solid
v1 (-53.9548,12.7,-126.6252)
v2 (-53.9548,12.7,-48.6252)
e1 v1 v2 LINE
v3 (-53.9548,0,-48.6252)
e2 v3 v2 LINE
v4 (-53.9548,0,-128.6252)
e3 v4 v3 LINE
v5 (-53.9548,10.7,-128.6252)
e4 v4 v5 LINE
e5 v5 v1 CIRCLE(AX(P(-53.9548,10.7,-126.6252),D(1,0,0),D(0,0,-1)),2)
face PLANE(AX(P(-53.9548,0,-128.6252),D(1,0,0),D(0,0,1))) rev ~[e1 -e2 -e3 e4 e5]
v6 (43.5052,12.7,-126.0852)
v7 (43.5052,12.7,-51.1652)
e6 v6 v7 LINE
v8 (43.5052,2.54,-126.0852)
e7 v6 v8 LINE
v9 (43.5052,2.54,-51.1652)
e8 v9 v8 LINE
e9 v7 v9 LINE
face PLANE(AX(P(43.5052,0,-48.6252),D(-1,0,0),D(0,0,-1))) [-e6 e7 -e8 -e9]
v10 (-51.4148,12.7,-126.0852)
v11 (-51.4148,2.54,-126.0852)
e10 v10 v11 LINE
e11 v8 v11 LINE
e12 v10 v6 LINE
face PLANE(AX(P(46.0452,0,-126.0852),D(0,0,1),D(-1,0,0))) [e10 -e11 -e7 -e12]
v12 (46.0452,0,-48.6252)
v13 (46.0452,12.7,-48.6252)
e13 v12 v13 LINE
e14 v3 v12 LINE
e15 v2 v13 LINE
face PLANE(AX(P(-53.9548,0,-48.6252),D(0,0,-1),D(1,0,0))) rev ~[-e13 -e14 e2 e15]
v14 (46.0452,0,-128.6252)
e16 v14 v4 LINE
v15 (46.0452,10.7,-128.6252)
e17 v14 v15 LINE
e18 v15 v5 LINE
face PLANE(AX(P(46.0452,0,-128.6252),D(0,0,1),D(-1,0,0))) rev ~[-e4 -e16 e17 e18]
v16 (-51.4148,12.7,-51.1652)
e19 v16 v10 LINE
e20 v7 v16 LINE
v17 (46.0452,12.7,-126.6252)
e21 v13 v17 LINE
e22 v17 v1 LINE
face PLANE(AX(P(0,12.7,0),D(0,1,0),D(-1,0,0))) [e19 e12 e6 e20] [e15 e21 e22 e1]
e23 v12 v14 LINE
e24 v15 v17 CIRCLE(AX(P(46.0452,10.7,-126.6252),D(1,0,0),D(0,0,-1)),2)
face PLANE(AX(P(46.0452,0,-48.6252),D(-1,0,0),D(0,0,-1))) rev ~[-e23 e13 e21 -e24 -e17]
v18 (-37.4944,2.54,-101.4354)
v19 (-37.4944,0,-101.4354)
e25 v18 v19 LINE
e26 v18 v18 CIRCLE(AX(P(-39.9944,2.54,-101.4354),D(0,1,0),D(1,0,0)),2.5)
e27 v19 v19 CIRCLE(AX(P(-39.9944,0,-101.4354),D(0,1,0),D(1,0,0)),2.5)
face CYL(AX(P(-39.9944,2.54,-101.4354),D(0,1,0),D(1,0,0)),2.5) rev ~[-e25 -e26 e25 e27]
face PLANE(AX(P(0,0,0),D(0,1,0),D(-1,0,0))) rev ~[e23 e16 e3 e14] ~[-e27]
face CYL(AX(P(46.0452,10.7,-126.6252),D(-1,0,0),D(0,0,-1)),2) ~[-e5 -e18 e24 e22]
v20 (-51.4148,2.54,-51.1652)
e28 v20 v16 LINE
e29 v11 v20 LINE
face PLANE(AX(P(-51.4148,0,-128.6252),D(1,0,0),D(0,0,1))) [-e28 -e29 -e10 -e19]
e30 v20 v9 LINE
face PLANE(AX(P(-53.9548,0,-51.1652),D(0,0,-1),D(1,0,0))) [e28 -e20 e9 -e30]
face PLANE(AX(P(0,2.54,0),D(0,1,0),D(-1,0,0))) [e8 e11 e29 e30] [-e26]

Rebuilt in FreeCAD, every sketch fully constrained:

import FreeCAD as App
import Part
import Sketcher
from FreeCAD import Vector
Q = App.Units.Quantity


def edges_at(feature, points):
    """Names of the edges that pass closest to the given points."""
    edges = feature.Shape.Edges
    near = lambda p: min(range(len(edges)), key=lambda i: edges[i].distToShape(Part.Vertex(*p))[0])
    return sorted({f"Edge{near(p) + 1}" for p in points})


def faces_at(feature, points):
    """Names of the faces that lie closest to the given points."""
    faces = feature.Shape.Faces
    near = lambda p: min(range(len(faces)), key=lambda i: faces[i].distToShape(Part.Vertex(*p))[0])
    return sorted({f"Face{near(p) + 1}" for p in points})


def add_polygon(sketch, points):
    """Adds a closed chain of lines whose ends are joined by coincident constraints."""
    first, n = sketch.GeometryCount, len(points)
    for a, b in zip(points, points[1:] + points[:1]):
        sketch.addGeometry(Part.LineSegment(App.Vector(*a, 0), App.Vector(*b, 0)), False)
    for i in range(n):
        sketch.addConstraint(Sketcher.Constraint("Coincident", first + i, 2, first + (i + 1) % n, 1))

doc = App.newDocument("Part")
body = doc.addObject("PartDesign::Body", "Body")

sketch1 = doc.addObject("Sketcher::SketchObject", "Sketch")
body.addObject(sketch1)
sketch1.AttachmentSupport = (doc.XZ_Plane, [""])
sketch1.MapMode = "FlatFace"
add_polygon(sketch1, [(-54, -129), (-54, -49), (46, -49), (46, -129)])
sketch1.addConstraint(Sketcher.Constraint("Vertical", 0))
sketch1.addConstraint(Sketcher.Constraint("Horizontal", 1))
sketch1.addConstraint(Sketcher.Constraint("Vertical", 2))
sketch1.addConstraint(Sketcher.Constraint("Horizontal", 3))
sketch1.addConstraint(Sketcher.Constraint("DistanceX", 1, 1, 1, 2, Q("3.937 in")))
sketch1.addConstraint(Sketcher.Constraint("DistanceY", 0, 1, 0, 2, Q("3.1496 in")))
sketch1.addConstraint(Sketcher.Constraint("DistanceX", 0, 2, -1, 1, Q("2.1242 in")))
sketch1.addConstraint(Sketcher.Constraint("DistanceY", 0, 2, -1, 1, Q("48.6252 mm")))
pad1 = doc.addObject("PartDesign::Pad", "Pad")
body.addObject(pad1)
pad1.Profile = sketch1
pad1.Length = Q("0.5 in")
pad1.Reversed = True
doc.recompute()

thickness = doc.addObject("PartDesign::Thickness", "Thickness")
body.addObject(thickness)
thickness.Base = (pad1, faces_at(pad1, [(12.712, 12.7, -75.292)]))
thickness.Value = Q("0.1 in")
thickness.Reversed = True
thickness.Join = "Intersection"
doc.recompute()

fillet = doc.addObject("PartDesign::Fillet", "Fillet")
body.addObject(fillet)
fillet.Base = (thickness, edges_at(thickness, [(-3.955, 12.7, -128.625)]))
fillet.Radius = 2

sketch2 = doc.addObject("Sketcher::SketchObject", "Sketch001")
body.addObject(sketch2)
sketch2.AttachmentSupport = (doc.XZ_Plane, [""])
sketch2.MapMode = "FlatFace"
sketch2.AttachmentOffset = App.Placement(Vector(0, 0, -0.1 * 25.4), App.Rotation())
sketch2.addGeometry(Part.Circle(Vector(-40, -101.4, 0), Vector(0, 0, 1), 2.5), False)
sketch2.addConstraint(Sketcher.Constraint("Diameter", 0, Q("5 mm")))
sketch2.addConstraint(Sketcher.Constraint("DistanceX", 0, 3, -1, 1, Q("39.9944 mm")))
sketch2.addConstraint(Sketcher.Constraint("DistanceY", 0, 3, -1, 1, Q("101.4354 mm")))
pocket1 = doc.addObject("PartDesign::Pocket", "Pocket")
body.addObject(pocket1)
pocket1.Profile = sketch2
pocket1.Length = Q("0.3937008 in")
pocket1.Reversed = True

doc.recompute()
